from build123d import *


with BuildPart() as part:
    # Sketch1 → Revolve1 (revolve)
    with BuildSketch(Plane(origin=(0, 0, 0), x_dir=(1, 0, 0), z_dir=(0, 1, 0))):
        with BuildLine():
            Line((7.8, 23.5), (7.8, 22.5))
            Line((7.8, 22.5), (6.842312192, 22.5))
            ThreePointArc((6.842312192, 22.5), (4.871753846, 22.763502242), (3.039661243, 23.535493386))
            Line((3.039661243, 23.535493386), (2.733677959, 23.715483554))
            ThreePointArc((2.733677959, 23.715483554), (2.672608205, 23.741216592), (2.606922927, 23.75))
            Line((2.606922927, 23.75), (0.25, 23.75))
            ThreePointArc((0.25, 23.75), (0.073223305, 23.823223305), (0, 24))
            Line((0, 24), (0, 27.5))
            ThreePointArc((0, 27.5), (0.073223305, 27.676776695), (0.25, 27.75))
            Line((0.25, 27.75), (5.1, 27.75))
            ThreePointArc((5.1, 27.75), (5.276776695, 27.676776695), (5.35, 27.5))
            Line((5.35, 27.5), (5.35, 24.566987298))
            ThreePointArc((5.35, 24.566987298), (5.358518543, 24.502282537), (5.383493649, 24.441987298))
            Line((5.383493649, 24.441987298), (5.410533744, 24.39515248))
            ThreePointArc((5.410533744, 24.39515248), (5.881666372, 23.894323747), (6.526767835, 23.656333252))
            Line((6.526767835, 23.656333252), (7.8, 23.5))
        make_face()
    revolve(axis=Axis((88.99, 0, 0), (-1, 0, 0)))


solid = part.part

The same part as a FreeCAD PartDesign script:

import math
import FreeCAD as App
import Part
import Sketcher
from FreeCAD import Vector
Q = App.Units.Quantity

doc = App.newDocument("Part")
body = doc.addObject("PartDesign::Body", "Body")

# Sketch on XZ plane
sketch1 = body.newObject("Sketcher::SketchObject", "Sketch")
sketch1.AttachmentSupport = (doc.getObject("XZ_Plane"), [""])
sketch1.MapMode = "FlatFace"
sketch1.addGeometry([
    Part.LineSegment(Vector(7.8, -22.5, 0), Vector(7.8, -23.5, 0)),  # 0
    Part.LineSegment(Vector(7.8, -23.5, 0), Vector(6.53, -23.66, 0)),  # 1
    Part.ArcOfCircle(Part.Circle(Vector(6.71, -25.15, 0), Vector(0, 0, 1), 1.5), math.radians(97), math.radians(150)),  # 2
    Part.LineSegment(Vector(5.41, -24.4, 0), Vector(5.38, -24.44, 0)),  # 3
    Part.ArcOfCircle(Part.Circle(Vector(5.6, -24.57, 0), Vector(0, 0, 1), 0.25), math.radians(150), math.radians(180)),  # 4
    Part.LineSegment(Vector(5.35, -24.57, 0), Vector(5.35, -27.5, 0)),  # 5
    Part.ArcOfCircle(Part.Circle(Vector(5.1, -27.5, 0), Vector(0, 0, 1), 0.25), math.radians(-90), math.radians(0)),  # 6
    Part.LineSegment(Vector(5.1, -27.75, 0), Vector(0.25, -27.75, 0)),  # 7
    Part.ArcOfCircle(Part.Circle(Vector(0.25, -27.5, 0), Vector(0, 0, 1), 0.25), math.radians(-180), math.radians(-90)),  # 8
    Part.LineSegment(Vector(0, -27.5, 0), Vector(0, -24, 0)),  # 9
    Part.ArcOfCircle(Part.Circle(Vector(0.25, -24, 0), Vector(0, 0, 1), 0.25), math.radians(90), math.radians(180)),  # 10
    Part.LineSegment(Vector(0.25, -23.75, 0), Vector(2.61, -23.75, 0)),  # 11
    Part.ArcOfCircle(Part.Circle(Vector(2.61, -23.5, 0), Vector(0, 0, 1), 0.25), math.radians(-90), math.radians(-60)),  # 12
    Part.LineSegment(Vector(2.73, -23.72, 0), Vector(3.04, -23.54, 0)),  # 13
    Part.ArcOfCircle(Part.Circle(Vector(6.84, -30, 0), Vector(0, 0, 1), 7.5), math.radians(90), math.radians(120)),  # 14
    Part.LineSegment(Vector(6.84, -22.5, 0), Vector(7.8, -22.5, 0)),  # 15
], False)
sketch1.addConstraint([
    Sketcher.Constraint("Coincident", 0, 2, 1, 1),
    Sketcher.Constraint("Tangent", 1, 2, 2, 1),
    Sketcher.Constraint("Tangent", 2, 2, 3, 1),
    Sketcher.Constraint("Tangent", 3, 2, 4, 1),
    Sketcher.Constraint("Tangent", 4, 2, 5, 1),
    Sketcher.Constraint("Tangent", 5, 2, 6, 2),
    Sketcher.Constraint("Tangent", 6, 1, 7, 1),
    Sketcher.Constraint("Tangent", 7, 2, 8, 2),
    Sketcher.Constraint("Tangent", 8, 1, 9, 1),
    Sketcher.Constraint("Tangent", 9, 2, 10, 2),
    Sketcher.Constraint("Tangent", 10, 1, 11, 1),
    Sketcher.Constraint("Tangent", 11, 2, 12, 1),
    Sketcher.Constraint("Tangent", 12, 2, 13, 1),
    Sketcher.Constraint("Tangent", 13, 2, 14, 2),
    Sketcher.Constraint("Tangent", 14, 1, 15, 1),
    Sketcher.Constraint("Coincident", 15, 2, 0, 1),
    Sketcher.Constraint("Vertical", 0),
    Sketcher.Constraint("Vertical", 5),
    Sketcher.Constraint("Horizontal", 7),
    Sketcher.Constraint("Vertical", 9),
    Sketcher.Constraint("Horizontal", 11),
    Sketcher.Constraint("Horizontal", 15),
    Sketcher.Constraint("Equal", 4, 6),
    Sketcher.Constraint("Equal", 6, 8),
    Sketcher.Constraint("Equal", 8, 10),
    Sketcher.Constraint("Equal", 10, 12),
    Sketcher.Constraint("PointOnObject", 8, 1, -2),
    Sketcher.Constraint("Horizontal", 12, 3, 0, 2),
    Sketcher.Constraint("Radius", 2, 1.5),
    Sketcher.Constraint("Radius", 14, 7.5),
    Sketcher.Constraint("DistanceY", 0, 2, 0, 1, 1.0),
    Sketcher.Constraint("Angle", 1, Q("-173 deg")),
    Sketcher.Constraint("Angle", 3, Q("-120 deg")),
    Sketcher.Constraint("Radius", 4, 0.25),
    Sketcher.Constraint("DistanceY", 9, 1, 9, 2, 3.5),
    Sketcher.Constraint("DistanceY", 10, 3, -1, 1, 24.0),
    Sketcher.Constraint("DistanceX", 7, 2, 7, 1, 4.85),
    Sketcher.Constraint("DistanceX", -1, 1, 0, 2, 7.8),
    Sketcher.Constraint("Distance", 3, 0.05408),
    Sketcher.Constraint("DistanceX", 11, 1, 11, 2, 2.356923),
    Sketcher.Constraint("DistanceX", 15, 1, 15, 2, 0.957688),
])
revolution = body.newObject("PartDesign::Revolution", "Revolution")
revolution.Profile = sketch1
revolution.ReferenceAxis = (sketch1, ["H_Axis"])
revolution.Angle = 360

doc.recompute()
